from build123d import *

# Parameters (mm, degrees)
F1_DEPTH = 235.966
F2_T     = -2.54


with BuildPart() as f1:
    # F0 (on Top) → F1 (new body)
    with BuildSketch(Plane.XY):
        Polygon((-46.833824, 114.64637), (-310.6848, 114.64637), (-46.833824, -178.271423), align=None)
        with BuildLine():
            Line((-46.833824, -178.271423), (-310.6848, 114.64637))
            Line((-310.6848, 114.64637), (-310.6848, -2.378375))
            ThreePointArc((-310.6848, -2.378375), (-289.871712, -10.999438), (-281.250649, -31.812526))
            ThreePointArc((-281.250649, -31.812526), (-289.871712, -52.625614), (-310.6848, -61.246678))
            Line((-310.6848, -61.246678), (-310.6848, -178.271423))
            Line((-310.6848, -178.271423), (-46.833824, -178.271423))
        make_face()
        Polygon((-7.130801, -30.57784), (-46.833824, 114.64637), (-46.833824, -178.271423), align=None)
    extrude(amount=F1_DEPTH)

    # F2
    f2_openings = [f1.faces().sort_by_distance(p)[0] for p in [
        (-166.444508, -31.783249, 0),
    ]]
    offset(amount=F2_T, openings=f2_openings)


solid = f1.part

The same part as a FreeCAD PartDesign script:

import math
import FreeCAD as App
import Part
import Sketcher
Q = App.Units.Quantity


def faces_at(feature, points):
    """Names of the faces that lie closest to the given points."""
    faces = feature.Shape.Faces
    near = lambda p: min(range(len(faces)), key=lambda i: faces[i].distToShape(Part.Vertex(*p))[0])
    return sorted({f"Face{near(p) + 1}" for p in points})

doc = App.newDocument("Part")
body = doc.addObject("PartDesign::Body", "Body")

# Sketch on XY plane
sketch1 = doc.addObject("Sketcher::SketchObject", "Sketch")
body.addObject(sketch1)
sketch1.AttachmentSupport = (doc.XY_Plane, [""])
sketch1.MapMode = "FlatFace"
sketch1.addGeometry(Part.LineSegment(App.Vector(-46.833824, 114.64637, 0), App.Vector(-310.6848, 114.64637, 0)), False)
sketch1.addGeometry(Part.LineSegment(App.Vector(-310.6848, 114.64637, 0), App.Vector(-310.6848, -2.378375, 0)), False)
sketch1.addGeometry(Part.ArcOfCircle(Part.Circle(App.Vector(-310.684799, -31.812525, 0), App.Vector(0, 0, 1), 29.43415), math.radians(-0.000002), math.radians(90.000002)), False)
sketch1.addGeometry(Part.ArcOfCircle(Part.Circle(App.Vector(-310.684801, -31.812526, 0), App.Vector(0, 0, 1), 29.434152), math.radians(-89.999998), math.radians(0)), False)
sketch1.addGeometry(Part.LineSegment(App.Vector(-310.6848, -61.246678, 0), App.Vector(-310.6848, -178.271423, 0)), False)
sketch1.addGeometry(Part.LineSegment(App.Vector(-310.6848, -178.271423, 0), App.Vector(-46.833824, -178.271423, 0)), False)
sketch1.addGeometry(Part.LineSegment(App.Vector(-46.833824, -178.271423, 0), App.Vector(-7.130801, -30.57784, 0)), False)
sketch1.addGeometry(Part.LineSegment(App.Vector(-7.130801, -30.57784, 0), App.Vector(-46.833824, 114.64637, 0)), False)
sketch1.addConstraint(Sketcher.Constraint("Coincident", 0, 2, 1, 1))
sketch1.addConstraint(Sketcher.Constraint("Coincident", 1, 2, 2, 2))
sketch1.addConstraint(Sketcher.Constraint("Tangent", 2, 1, 3, 2))
sketch1.addConstraint(Sketcher.Constraint("Coincident", 3, 1, 4, 1))
sketch1.addConstraint(Sketcher.Constraint("Coincident", 4, 2, 5, 1))
sketch1.addConstraint(Sketcher.Constraint("Coincident", 5, 2, 6, 1))
sketch1.addConstraint(Sketcher.Constraint("Coincident", 6, 2, 7, 1))
sketch1.addConstraint(Sketcher.Constraint("Coincident", 7, 2, 0, 1))
sketch1.addConstraint(Sketcher.Constraint("Horizontal", 0))
sketch1.addConstraint(Sketcher.Constraint("Vertical", 1))
sketch1.addConstraint(Sketcher.Constraint("Vertical", 4))
sketch1.addConstraint(Sketcher.Constraint("Horizontal", 5))
sketch1.addConstraint(Sketcher.Constraint("Equal", 2, 3))
sketch1.addConstraint(Sketcher.Constraint("Horizontal", 3, 3, 2, 1))
sketch1.addConstraint(Sketcher.Constraint("Vertical", 3, 3, 0, 2))
sketch1.addConstraint(Sketcher.Constraint("Vertical", 1, 2, 3, 1))
sketch1.addConstraint(Sketcher.Constraint("Vertical", 5, 2, 7, 2))
sketch1.addConstraint(Sketcher.Constraint("Equal", 1, 4))
sketch1.addConstraint(Sketcher.Constraint("Radius", 2, Q("29.43415 mm")))
sketch1.addConstraint(Sketcher.Constraint("DistanceX", 2, 3, -1, 1, Q("310.684799 mm")))
sketch1.addConstraint(Sketcher.Constraint("DistanceX", 6, 2, -1, 1, Q("7.130801 mm")))
sketch1.addConstraint(Sketcher.Constraint("Distance", 7, Q("150.553649 mm")))
sketch1.addConstraint(Sketcher.Constraint("DistanceX", 0, 2, 0, 1, Q("263.850976 mm")))
sketch1.addConstraint(Sketcher.Constraint("DistanceY", 1, 2, 1, 1, Q("117.024745 mm")))
sketch1.addConstraint(Sketcher.Constraint("DistanceY", -1, 1, 0, 2, Q("114.64637 mm")))
pad1 = doc.addObject("PartDesign::Pad", "Pad")
body.addObject(pad1)
pad1.Profile = sketch1
pad1.Length = Q("9.29 in")
doc.recompute()

thickness = doc.addObject("PartDesign::Thickness", "Thickness")
body.addObject(thickness)
thickness.Base = (pad1, faces_at(pad1, [(-158.908, -31.813, 0)]))
thickness.Value = Q("0.1 in")
thickness.Reversed = True
thickness.Join = "Arc"

doc.recompute()
